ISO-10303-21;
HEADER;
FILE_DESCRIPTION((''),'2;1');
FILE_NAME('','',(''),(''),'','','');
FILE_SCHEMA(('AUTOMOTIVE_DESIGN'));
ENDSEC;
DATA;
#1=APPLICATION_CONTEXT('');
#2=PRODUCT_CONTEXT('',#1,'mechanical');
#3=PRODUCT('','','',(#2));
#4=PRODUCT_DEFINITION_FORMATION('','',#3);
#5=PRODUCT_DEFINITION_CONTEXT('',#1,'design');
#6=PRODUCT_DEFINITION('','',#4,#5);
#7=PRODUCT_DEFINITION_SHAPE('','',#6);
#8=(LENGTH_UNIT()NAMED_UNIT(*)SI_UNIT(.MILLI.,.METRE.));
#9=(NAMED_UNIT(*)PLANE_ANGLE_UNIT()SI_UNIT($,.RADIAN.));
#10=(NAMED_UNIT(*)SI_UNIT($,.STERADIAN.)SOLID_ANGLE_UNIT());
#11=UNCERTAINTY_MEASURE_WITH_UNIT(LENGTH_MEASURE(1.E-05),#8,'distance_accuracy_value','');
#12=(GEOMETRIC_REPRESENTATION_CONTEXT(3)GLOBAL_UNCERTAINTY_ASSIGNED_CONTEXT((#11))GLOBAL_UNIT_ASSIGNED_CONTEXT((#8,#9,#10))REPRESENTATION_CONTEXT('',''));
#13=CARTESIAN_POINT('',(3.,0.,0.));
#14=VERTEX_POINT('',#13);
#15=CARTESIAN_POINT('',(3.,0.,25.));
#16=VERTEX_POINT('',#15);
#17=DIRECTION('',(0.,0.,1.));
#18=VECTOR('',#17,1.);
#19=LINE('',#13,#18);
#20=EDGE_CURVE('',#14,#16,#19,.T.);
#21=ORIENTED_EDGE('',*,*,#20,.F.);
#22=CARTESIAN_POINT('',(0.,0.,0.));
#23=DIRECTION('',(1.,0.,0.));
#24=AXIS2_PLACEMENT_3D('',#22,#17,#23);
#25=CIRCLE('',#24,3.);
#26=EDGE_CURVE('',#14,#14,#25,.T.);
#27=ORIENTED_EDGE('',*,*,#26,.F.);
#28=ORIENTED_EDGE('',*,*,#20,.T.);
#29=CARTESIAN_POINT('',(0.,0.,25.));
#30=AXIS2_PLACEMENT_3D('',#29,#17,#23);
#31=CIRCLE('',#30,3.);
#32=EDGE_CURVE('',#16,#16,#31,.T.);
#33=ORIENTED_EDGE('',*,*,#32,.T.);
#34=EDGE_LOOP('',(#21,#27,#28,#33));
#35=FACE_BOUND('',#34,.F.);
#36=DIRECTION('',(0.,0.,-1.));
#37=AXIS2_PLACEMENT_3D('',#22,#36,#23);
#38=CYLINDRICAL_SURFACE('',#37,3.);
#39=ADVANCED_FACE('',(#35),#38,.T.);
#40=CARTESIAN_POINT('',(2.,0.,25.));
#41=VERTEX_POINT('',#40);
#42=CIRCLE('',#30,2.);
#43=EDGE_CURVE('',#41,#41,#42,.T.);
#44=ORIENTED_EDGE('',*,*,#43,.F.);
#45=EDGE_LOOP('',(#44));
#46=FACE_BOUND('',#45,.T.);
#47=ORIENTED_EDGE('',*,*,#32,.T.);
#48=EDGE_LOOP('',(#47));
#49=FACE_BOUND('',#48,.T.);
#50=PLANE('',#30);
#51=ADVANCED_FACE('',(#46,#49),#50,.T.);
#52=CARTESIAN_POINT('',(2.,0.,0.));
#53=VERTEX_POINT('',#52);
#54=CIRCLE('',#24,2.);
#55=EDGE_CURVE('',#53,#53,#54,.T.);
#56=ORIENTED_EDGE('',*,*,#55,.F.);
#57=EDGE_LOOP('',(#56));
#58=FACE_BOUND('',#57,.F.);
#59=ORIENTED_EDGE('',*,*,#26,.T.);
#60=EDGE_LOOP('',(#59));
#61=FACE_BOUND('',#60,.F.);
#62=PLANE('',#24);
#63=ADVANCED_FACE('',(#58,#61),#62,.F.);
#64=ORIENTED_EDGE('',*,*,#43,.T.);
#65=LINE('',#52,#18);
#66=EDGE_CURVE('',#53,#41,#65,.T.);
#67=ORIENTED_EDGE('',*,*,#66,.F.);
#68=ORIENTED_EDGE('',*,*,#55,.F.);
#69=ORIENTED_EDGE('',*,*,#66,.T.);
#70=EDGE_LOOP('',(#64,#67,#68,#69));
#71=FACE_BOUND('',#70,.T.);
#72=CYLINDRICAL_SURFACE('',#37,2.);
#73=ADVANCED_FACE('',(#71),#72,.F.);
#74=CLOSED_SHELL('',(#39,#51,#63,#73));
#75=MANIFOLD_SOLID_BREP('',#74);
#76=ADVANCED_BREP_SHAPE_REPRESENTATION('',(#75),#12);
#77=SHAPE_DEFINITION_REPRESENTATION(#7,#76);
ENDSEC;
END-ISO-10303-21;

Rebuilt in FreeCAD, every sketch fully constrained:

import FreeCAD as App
import Part
import Sketcher
Q = App.Units.Quantity

doc = App.newDocument("Part")
body = doc.addObject("PartDesign::Body", "Body")

sketch1 = body.newObject("Sketcher::SketchObject", "Sketch")
sketch1.AttachmentSupport = (doc.getObject("XY_Plane"), [""])
sketch1.MapMode = "FlatFace"
sketch1.addGeometry([
    Part.Circle(App.Vector(0, 0, 0), App.Vector(0, 0, 1), 3),
    Part.Circle(App.Vector(0, 0, 0), App.Vector(0, 0, 1), 2),
], False)
sketch1.addConstraint([
    Sketcher.Constraint("Coincident", 0, 3, -1, 1),
    Sketcher.Constraint("Coincident", 1, 3, -1, 1),
    Sketcher.Constraint("Diameter", 0, Q("6 mm")),
    Sketcher.Constraint("Diameter", 1, Q("4 mm")),
])
pad1 = body.newObject("PartDesign::Pad", "Pad")
pad1.Profile = sketch1
pad1.Length = 25

doc.recompute()
